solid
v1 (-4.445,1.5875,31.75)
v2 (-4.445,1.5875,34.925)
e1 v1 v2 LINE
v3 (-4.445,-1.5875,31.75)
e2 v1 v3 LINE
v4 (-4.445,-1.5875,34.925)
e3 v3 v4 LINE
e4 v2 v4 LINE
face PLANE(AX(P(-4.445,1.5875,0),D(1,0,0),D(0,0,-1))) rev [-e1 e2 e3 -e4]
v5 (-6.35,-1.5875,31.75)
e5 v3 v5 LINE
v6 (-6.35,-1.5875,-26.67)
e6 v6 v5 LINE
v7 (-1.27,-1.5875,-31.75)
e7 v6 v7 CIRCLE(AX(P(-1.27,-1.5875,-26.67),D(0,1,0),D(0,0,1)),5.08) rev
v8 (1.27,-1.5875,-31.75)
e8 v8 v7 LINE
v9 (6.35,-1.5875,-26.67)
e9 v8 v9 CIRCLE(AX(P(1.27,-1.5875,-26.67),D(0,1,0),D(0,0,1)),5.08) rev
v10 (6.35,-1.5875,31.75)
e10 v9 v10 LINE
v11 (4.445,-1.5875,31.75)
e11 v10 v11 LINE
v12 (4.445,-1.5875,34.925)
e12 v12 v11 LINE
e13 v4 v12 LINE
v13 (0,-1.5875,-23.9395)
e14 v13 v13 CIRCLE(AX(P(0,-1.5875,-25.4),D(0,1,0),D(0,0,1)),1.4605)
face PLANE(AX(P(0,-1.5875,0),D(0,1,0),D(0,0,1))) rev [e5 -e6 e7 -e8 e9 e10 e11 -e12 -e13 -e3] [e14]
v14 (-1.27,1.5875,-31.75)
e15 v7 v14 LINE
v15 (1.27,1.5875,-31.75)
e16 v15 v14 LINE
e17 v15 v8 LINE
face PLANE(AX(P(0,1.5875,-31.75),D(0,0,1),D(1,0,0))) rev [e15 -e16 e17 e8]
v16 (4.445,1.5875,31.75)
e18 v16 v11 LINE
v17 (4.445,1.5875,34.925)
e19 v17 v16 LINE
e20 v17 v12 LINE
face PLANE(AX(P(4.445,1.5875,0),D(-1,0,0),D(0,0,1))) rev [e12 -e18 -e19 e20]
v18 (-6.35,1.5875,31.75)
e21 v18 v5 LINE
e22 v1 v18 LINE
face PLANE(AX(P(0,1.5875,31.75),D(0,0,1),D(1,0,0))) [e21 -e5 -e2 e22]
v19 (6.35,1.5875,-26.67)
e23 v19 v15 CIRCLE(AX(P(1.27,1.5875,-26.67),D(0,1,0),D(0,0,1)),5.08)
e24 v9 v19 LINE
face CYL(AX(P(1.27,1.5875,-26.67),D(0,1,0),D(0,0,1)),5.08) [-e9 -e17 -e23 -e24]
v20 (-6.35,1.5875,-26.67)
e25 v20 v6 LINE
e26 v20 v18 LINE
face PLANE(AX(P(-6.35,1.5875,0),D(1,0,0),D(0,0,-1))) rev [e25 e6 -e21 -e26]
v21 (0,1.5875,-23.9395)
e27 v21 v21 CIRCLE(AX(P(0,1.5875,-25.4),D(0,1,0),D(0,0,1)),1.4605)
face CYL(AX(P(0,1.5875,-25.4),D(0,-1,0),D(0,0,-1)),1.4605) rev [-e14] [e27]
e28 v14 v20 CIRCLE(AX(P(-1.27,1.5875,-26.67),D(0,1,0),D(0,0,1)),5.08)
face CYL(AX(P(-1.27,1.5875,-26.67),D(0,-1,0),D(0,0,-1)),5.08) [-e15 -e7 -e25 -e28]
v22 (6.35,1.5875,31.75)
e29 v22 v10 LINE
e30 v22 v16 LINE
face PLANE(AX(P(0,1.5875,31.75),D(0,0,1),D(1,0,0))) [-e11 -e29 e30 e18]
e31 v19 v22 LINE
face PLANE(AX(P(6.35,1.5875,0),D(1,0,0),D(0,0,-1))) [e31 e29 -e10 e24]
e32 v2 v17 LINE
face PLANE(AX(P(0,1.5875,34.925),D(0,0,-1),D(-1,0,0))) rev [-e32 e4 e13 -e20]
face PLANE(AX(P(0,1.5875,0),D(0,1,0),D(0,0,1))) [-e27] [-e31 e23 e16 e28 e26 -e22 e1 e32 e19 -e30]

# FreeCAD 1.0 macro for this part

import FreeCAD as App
import Part
import Sketcher
Q = App.Units.Quantity


def edges_at(feature, points):
    """Names of the edges that pass closest to the given points."""
    edges = feature.Shape.Edges
    near = lambda p: min(range(len(edges)), key=lambda i: edges[i].distToShape(Part.Vertex(*p))[0])
    return sorted({f"Edge{near(p) + 1}" for p in points})

doc = App.newDocument("Part")
body = doc.addObject("PartDesign::Body", "Body")

# Sketch on XZ plane
sketch1 = body.newObject("Sketcher::SketchObject", "Sketch")
sketch1.AttachmentSupport = (doc.getObject("XZ_Plane"), [""])
sketch1.MapMode = "FlatFace"
sketch1.addGeometry([
    Part.LineSegment(App.Vector(4.4, 34.9, 0), App.Vector(4.4, 31.8, 0)),  # 0
    Part.LineSegment(App.Vector(4.4, 31.8, 0), App.Vector(6.3, 31.8, 0)),  # 1
    Part.LineSegment(App.Vector(6.3, 31.8, 0), App.Vector(6.3, -31.8, 0)),  # 2
    Part.LineSegment(App.Vector(6.3, -31.8, 0), App.Vector(-6.3, -31.8, 0)),  # 3
    Part.LineSegment(App.Vector(-6.3, -31.8, 0), App.Vector(-6.3, 31.8, 0)),  # 4
    Part.LineSegment(App.Vector(-6.3, 31.8, 0), App.Vector(-4.4, 31.8, 0)),  # 5
    Part.LineSegment(App.Vector(-4.4, 31.8, 0), App.Vector(-4.4, 34.9, 0)),  # 6
    Part.LineSegment(App.Vector(-4.4, 34.9, 0), App.Vector(4.4, 34.9, 0)),  # 7
    Part.Circle(App.Vector(0, -25.4, 0), App.Vector(0, 0, 1), 1.5),  # 8
], False)
sketch1.addConstraint([
    Sketcher.Constraint("Coincident", 0, 2, 1, 1),
    Sketcher.Constraint("Coincident", 1, 2, 2, 1),
    Sketcher.Constraint("Coincident", 2, 2, 3, 1),
    Sketcher.Constraint("Coincident", 3, 2, 4, 1),
    Sketcher.Constraint("Coincident", 4, 2, 5, 1),
    Sketcher.Constraint("Coincident", 5, 2, 6, 1),
    Sketcher.Constraint("Coincident", 6, 2, 7, 1),
    Sketcher.Constraint("Coincident", 7, 2, 0, 1),
    Sketcher.Constraint("Vertical", 0),
    Sketcher.Constraint("Horizontal", 1),
    Sketcher.Constraint("Vertical", 2),
    Sketcher.Constraint("Horizontal", 3),
    Sketcher.Constraint("Vertical", 4),
    Sketcher.Constraint("Horizontal", 5),
    Sketcher.Constraint("Vertical", 6),
    Sketcher.Constraint("Horizontal", 7),
    Sketcher.Constraint("Symmetric", 1, 2, 3, 2, -1, 1),
    Sketcher.Constraint("Symmetric", 0, 2, 5, 2, -2),
    Sketcher.Constraint("PointOnObject", 8, 3, -2),
    Sketcher.Constraint("Diameter", 8, Q("0.115 in")),
    Sketcher.Constraint("DistanceX", 3, 2, 3, 1, Q("0.5 in")),
    Sketcher.Constraint("DistanceY", 2, 2, 2, 1, Q("2.5 in")),
    Sketcher.Constraint("DistanceY", 8, 3, -1, 1, Q("1 in")),
    Sketcher.Constraint("DistanceX", 7, 1, 7, 2, Q("0.35 in")),
    Sketcher.Constraint("DistanceY", 0, 2, 0, 1, Q("0.125 in")),
])
pad1 = body.newObject("PartDesign::Pad", "Pad")
pad1.Profile = sketch1
pad1.Length = Q("0.125 in")
pad1.Midplane = True
doc.recompute()

fillet = body.newObject("PartDesign::Fillet", "Fillet")
fillet.Base = (pad1, edges_at(pad1, [(6.35, 0, -31.75), (-6.35, 0, -31.75)]))
fillet.Radius = Q("0.2 in")

doc.recompute()
